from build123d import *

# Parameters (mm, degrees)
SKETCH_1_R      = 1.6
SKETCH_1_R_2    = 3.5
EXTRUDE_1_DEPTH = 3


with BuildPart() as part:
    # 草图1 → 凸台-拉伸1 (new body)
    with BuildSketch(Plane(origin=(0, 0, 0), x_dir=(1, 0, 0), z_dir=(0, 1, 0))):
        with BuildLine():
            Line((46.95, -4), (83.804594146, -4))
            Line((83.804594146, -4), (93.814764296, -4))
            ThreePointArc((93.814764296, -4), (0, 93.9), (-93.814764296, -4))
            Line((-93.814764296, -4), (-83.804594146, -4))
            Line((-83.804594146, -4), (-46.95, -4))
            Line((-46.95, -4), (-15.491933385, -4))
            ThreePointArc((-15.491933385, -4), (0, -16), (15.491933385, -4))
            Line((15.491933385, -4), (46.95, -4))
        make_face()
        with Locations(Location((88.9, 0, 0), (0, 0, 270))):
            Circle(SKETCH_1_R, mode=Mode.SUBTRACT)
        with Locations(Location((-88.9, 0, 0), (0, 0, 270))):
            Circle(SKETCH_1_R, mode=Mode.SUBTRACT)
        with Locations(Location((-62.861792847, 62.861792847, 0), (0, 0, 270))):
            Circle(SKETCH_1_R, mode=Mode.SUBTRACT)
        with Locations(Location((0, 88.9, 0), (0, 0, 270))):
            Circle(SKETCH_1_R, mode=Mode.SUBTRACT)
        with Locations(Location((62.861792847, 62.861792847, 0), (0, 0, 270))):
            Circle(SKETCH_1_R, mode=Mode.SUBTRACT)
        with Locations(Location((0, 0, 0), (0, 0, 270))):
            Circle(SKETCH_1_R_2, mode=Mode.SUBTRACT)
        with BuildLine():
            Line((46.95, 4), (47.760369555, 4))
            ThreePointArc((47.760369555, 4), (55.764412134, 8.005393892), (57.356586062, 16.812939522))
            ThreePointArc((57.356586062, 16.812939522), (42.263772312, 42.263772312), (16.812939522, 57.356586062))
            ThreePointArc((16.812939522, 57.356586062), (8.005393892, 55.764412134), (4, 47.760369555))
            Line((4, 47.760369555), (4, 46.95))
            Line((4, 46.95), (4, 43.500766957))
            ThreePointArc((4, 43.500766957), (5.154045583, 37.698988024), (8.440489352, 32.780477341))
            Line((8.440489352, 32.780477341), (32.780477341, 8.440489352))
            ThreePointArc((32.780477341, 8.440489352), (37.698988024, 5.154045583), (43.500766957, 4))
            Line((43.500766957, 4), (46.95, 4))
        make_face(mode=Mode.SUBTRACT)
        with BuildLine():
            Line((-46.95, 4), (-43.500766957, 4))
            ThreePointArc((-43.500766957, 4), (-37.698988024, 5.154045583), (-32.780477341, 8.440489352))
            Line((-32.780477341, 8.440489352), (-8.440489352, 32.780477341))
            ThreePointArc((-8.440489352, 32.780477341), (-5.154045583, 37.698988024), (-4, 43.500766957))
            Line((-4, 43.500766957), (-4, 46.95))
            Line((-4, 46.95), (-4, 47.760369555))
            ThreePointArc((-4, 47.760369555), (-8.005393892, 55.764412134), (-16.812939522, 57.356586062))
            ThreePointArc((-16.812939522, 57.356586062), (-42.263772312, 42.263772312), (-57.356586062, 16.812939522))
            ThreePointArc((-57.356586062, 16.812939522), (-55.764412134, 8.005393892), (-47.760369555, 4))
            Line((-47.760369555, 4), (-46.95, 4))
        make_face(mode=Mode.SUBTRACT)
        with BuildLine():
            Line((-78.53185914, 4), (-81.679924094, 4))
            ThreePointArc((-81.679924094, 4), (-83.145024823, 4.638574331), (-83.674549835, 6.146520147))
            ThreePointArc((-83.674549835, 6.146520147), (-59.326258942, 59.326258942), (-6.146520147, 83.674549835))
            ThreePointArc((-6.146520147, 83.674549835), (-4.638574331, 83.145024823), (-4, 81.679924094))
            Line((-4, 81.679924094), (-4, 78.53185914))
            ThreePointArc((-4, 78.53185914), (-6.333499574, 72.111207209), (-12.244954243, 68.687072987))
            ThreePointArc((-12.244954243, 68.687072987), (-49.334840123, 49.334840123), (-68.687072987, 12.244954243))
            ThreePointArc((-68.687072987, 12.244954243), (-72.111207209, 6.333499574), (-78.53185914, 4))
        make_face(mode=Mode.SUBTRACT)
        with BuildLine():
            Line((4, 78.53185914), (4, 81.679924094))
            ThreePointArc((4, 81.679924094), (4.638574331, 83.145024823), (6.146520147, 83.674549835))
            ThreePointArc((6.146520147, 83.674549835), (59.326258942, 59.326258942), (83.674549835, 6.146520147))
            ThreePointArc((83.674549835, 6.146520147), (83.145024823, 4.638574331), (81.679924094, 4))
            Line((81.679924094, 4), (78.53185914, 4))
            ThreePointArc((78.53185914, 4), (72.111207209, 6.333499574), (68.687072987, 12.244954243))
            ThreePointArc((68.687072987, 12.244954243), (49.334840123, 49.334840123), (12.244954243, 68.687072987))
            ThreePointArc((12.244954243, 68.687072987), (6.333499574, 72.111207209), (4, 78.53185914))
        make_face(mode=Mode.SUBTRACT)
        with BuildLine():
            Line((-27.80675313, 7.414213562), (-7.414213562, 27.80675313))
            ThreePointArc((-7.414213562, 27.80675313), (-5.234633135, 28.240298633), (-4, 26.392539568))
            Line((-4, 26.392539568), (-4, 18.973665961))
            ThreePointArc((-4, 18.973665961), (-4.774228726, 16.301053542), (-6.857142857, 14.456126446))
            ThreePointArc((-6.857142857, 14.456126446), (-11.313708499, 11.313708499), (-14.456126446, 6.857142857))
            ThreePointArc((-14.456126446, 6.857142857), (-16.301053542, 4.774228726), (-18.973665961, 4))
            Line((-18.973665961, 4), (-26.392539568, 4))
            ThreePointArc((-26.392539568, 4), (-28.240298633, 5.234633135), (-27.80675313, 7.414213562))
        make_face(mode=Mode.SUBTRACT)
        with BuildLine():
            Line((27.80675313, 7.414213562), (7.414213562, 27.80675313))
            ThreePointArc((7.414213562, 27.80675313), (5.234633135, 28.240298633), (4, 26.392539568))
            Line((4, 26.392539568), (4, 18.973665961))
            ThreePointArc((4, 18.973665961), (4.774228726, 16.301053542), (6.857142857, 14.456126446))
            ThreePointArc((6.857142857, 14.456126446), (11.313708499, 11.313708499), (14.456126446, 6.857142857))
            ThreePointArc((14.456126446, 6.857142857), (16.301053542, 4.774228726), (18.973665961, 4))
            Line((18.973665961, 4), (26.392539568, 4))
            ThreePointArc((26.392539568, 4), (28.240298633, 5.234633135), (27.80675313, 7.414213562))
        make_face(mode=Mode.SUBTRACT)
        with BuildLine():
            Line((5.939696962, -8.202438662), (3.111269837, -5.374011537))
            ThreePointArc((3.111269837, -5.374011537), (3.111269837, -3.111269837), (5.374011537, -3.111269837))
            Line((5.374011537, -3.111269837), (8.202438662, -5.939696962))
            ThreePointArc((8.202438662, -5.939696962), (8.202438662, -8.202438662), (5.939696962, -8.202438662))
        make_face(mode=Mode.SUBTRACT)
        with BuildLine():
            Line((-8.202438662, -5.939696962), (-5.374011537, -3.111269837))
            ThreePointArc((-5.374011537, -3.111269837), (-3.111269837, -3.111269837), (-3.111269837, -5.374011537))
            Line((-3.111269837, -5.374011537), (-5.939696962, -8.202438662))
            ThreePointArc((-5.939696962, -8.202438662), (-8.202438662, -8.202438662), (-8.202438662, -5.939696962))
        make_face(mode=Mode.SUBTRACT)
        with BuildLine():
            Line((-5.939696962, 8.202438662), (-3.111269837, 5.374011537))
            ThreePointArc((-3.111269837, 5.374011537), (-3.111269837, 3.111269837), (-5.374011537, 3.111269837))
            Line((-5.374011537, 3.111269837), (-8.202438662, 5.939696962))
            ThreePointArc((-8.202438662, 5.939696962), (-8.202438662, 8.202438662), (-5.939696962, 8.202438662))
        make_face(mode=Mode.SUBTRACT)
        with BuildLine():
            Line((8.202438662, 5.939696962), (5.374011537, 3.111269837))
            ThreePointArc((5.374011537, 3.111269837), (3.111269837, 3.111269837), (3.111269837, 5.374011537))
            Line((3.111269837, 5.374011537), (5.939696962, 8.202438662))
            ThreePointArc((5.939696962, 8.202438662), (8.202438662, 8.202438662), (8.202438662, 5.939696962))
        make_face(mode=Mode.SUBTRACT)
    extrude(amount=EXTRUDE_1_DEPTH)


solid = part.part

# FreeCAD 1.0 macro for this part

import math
import FreeCAD as App
import Part
import Sketcher
from FreeCAD import Vector

doc = App.newDocument("Part")
body = doc.addObject("PartDesign::Body", "Body")

# Sketch on XZ plane
sketch1 = body.newObject("Sketcher::SketchObject", "Sketch")
sketch1.AttachmentSupport = (doc.getObject("XZ_Plane"), [""])
sketch1.MapMode = "FlatFace"
sketch1.addGeometry([
    Part.ArcOfCircle(Part.Circle(Vector(0, 0, 0), Vector(0, 0, 1), 93.9), math.radians(178), math.radians(362)),  # 0
    Part.LineSegment(Vector(-93.8, 4, 0), Vector(-15.5, 4, 0)),  # 1
    Part.ArcOfCircle(Part.Circle(Vector(0, 0, 0), Vector(0, 0, 1), 16), math.radians(14), math.radians(166)),  # 2
    Part.LineSegment(Vector(15.5, 4, 0), Vector(93.8, 4, 0)),  # 3
    Part.Circle(Vector(-88.9, 0, 0), Vector(0, 0, 1), 1.6),  # 4
    Part.ArcOfCircle(Part.Circle(Vector(-7.1, 7.1, 0), Vector(0, 0, 1), 1.6), math.radians(45), math.radians(225)),  # 5
    Part.LineSegment(Vector(-8.2, 5.9, 0), Vector(-5.4, 3.1, 0)),  # 6
    Part.ArcOfCircle(Part.Circle(Vector(-4.2, 4.2, 0), Vector(0, 0, 1), 1.6), math.radians(-135), math.radians(45)),  # 7
    Part.LineSegment(Vector(-3.1, 5.4, 0), Vector(-5.9, 8.2, 0)),  # 8
    Part.ArcOfCircle(Part.Circle(Vector(-7.1, -7.1, 0), Vector(0, 0, 1), 1.6), math.radians(135), math.radians(315)),  # 9
    Part.LineSegment(Vector(-5.9, -8.2, 0), Vector(-3.1, -5.4, 0)),  # 10
    Part.ArcOfCircle(Part.Circle(Vector(-4.2, -4.2, 0), Vector(0, 0, 1), 1.6), math.radians(-45), math.radians(135)),  # 11
    Part.LineSegment(Vector(-5.4, -3.1, 0), Vector(-8.2, -5.9, 0)),  # 12
    Part.ArcOfCircle(Part.Circle(Vector(-26.4, -6, 0), Vector(0, 0, 1), 2), math.radians(90), math.radians(225)),  # 13
    Part.LineSegment(Vector(-27.8, -7.4, 0), Vector(-7.4, -27.8, 0)),  # 14
    Part.ArcOfCircle(Part.Circle(Vector(-6, -26.4, 0), Vector(0, 0, 1), 2), math.radians(-135), math.radians(0)),  # 15
    Part.LineSegment(Vector(-4, -26.4, 0), Vector(-4, -19, 0)),  # 16
    Part.ArcOfCircle(Part.Circle(Vector(-9, -19, 0), Vector(0, 0, 1), 5), math.radians(0), math.radians(65)),  # 17
    Part.ArcOfCircle(Part.Circle(Vector(0, 0, 0), Vector(0, 0, 1), 16), math.radians(-155), math.radians(-115)),  # 18
    Part.ArcOfCircle(Part.Circle(Vector(-19, -9, 0), Vector(0, 0, 1), 5), math.radians(25), math.radians(90)),  # 19
    Part.LineSegment(Vector(-19, -4, 0), Vector(-26.4, -4, 0)),  # 20
    Part.ArcOfCircle(Part.Circle(Vector(-43.5, -19.2, 0), Vector(0, 0, 1), 15.2), math.radians(45), math.radians(90)),  # 21
    Part.LineSegment(Vector(-43.5, -4, 0), Vector(-47.8, -4, 0)),  # 22
    Part.ArcOfCircle(Part.Circle(Vector(-47.8, -14, 0), Vector(0, 0, 1), 10), math.radians(90), math.radians(196)),  # 23
    Part.ArcOfCircle(Part.Circle(Vector(0, 0, 0), Vector(0, 0, 1), 59.8), math.radians(-164), math.radians(-106)),  # 24
    Part.ArcOfCircle(Part.Circle(Vector(-14, -47.8, 0), Vector(0, 0, 1), 10), math.radians(-106), math.radians(0)),  # 25
    Part.LineSegment(Vector(-4, -47.8, 0), Vector(-4, -43.5, 0)),  # 26
    Part.ArcOfCircle(Part.Circle(Vector(-19.2, -43.5, 0), Vector(0, 0, 1), 15.2), math.radians(0), math.radians(45)),  # 27
    Part.LineSegment(Vector(-8.4, -32.8, 0), Vector(-32.8, -8.4, 0)),  # 28
    Part.ArcOfCircle(Part.Circle(Vector(7.1, 7.1, 0), Vector(0, 0, 1), 1.6), math.radians(-45), math.radians(135)),  # 29
    Part.LineSegment(Vector(5.9, 8.2, 0), Vector(3.1, 5.4, 0)),  # 30
    Part.ArcOfCircle(Part.Circle(Vector(4.2, 4.2, 0), Vector(0, 0, 1), 1.6), math.radians(135), math.radians(315)),  # 31
    Part.LineSegment(Vector(5.4, 3.1, 0), Vector(8.2, 5.9, 0)),  # 32
    Part.Circle(Vector(0, 0, 0), Vector(0, 0, 1), 3.5),  # 33
    Part.ArcOfCircle(Part.Circle(Vector(7.1, -7.1, 0), Vector(0, 0, 1), 1.6), math.radians(-135), math.radians(45)),  # 34
    Part.LineSegment(Vector(8.2, -5.9, 0), Vector(5.4, -3.1, 0)),  # 35
    Part.ArcOfCircle(Part.Circle(Vector(4.2, -4.2, 0), Vector(0, 0, 1), 1.6), math.radians(45), math.radians(225)),  # 36
    Part.LineSegment(Vector(3.1, -5.4, 0), Vector(5.9, -8.2, 0)),  # 37
    Part.Circle(Vector(88.9, 0, 0), Vector(0, 0, 1), 1.6),  # 38
    Part.LineSegment(Vector(7.4, -27.8, 0), Vector(27.8, -7.4, 0)),  # 39
    Part.ArcOfCircle(Part.Circle(Vector(26.4, -6, 0), Vector(0, 0, 1), 2), math.radians(-45), math.radians(90)),  # 40
    Part.LineSegment(Vector(26.4, -4, 0), Vector(19, -4, 0)),  # 41
    Part.ArcOfCircle(Part.Circle(Vector(19, -9, 0), Vector(0, 0, 1), 5), math.radians(90), math.radians(155)),  # 42
    Part.ArcOfCircle(Part.Circle(Vector(0, 0, 0), Vector(0, 0, 1), 16), math.radians(-65), math.radians(-25)),  # 43
    Part.ArcOfCircle(Part.Circle(Vector(9, -19, 0), Vector(0, 0, 1), 5), math.radians(115), math.radians(180)),  # 44
    Part.LineSegment(Vector(4, -19, 0), Vector(4, -26.4, 0)),  # 45
    Part.ArcOfCircle(Part.Circle(Vector(6, -26.4, 0), Vector(0, 0, 1), 2), math.radians(180), math.radians(315)),  # 46
    Part.ArcOfCircle(Part.Circle(Vector(47.8, -14, 0), Vector(0, 0, 1), 10), math.radians(-16), math.radians(90)),  # 47
    Part.LineSegment(Vector(47.8, -4, 0), Vector(43.5, -4, 0)),  # 48
    Part.ArcOfCircle(Part.Circle(Vector(43.5, -19.2, 0), Vector(0, 0, 1), 15.2), math.radians(90), math.radians(135)),  # 49
    Part.LineSegment(Vector(32.8, -8.4, 0), Vector(8.4, -32.8, 0)),  # 50
    Part.ArcOfCircle(Part.Circle(Vector(19.2, -43.5, 0), Vector(0, 0, 1), 15.2), math.radians(135), math.radians(180)),  # 51
    Part.LineSegment(Vector(4, -43.5, 0), Vector(4, -47.8, 0)),  # 52
    Part.ArcOfCircle(Part.Circle(Vector(14, -47.8, 0), Vector(0, 0, 1), 10), math.radians(180), math.radians(286)),  # 53
    Part.ArcOfCircle(Part.Circle(Vector(0, 0, 0), Vector(0, 0, 1), 59.8), math.radians(-74), math.radians(-16)),  # 54
    Part.Circle(Vector(-62.9, -62.9, 0), Vector(0, 0, 1), 1.6),  # 55
    Part.ArcOfCircle(Part.Circle(Vector(-78.5, -14, 0), Vector(0, 0, 1), 10), math.radians(10), math.radians(90)),  # 56
    Part.LineSegment(Vector(-78.5, -4, 0), Vector(-81.7, -4, 0)),  # 57
    Part.ArcOfCircle(Part.Circle(Vector(-81.7, -6, 0), Vector(0, 0, 1), 2), math.radians(90), math.radians(184)),  # 58
    Part.ArcOfCircle(Part.Circle(Vector(0, 0, 0), Vector(0, 0, 1), 83.9), math.radians(-176), math.radians(-94)),  # 59
    Part.ArcOfCircle(Part.Circle(Vector(-6, -81.7, 0), Vector(0, 0, 1), 2), math.radians(-94), math.radians(0)),  # 60
    Part.LineSegment(Vector(-4, -81.7, 0), Vector(-4, -78.5, 0)),  # 61
    Part.ArcOfCircle(Part.Circle(Vector(-14, -78.5, 0), Vector(0, 0, 1), 10), math.radians(0), math.radians(80)),  # 62
    Part.ArcOfCircle(Part.Circle(Vector(0, 0, 0), Vector(0, 0, 1), 69.8), math.radians(-170), math.radians(-100)),  # 63
    Part.ArcOfCircle(Part.Circle(Vector(14, -78.5, 0), Vector(0, 0, 1), 10), math.radians(100), math.radians(180)),  # 64
    Part.LineSegment(Vector(4, -78.5, 0), Vector(4, -81.7, 0)),  # 65
    Part.ArcOfCircle(Part.Circle(Vector(6, -81.7, 0), Vector(0, 0, 1), 2), math.radians(-180), math.radians(-86)),  # 66
    Part.ArcOfCircle(Part.Circle(Vector(0, 0, 0), Vector(0, 0, 1), 83.9), math.radians(-86), math.radians(-4)),  # 67
    Part.ArcOfCircle(Part.Circle(Vector(81.7, -6, 0), Vector(0, 0, 1), 2), math.radians(-4), math.radians(90)),  # 68
    Part.LineSegment(Vector(81.7, -4, 0), Vector(78.5, -4, 0)),  # 69
    Part.ArcOfCircle(Part.Circle(Vector(78.5, -14, 0), Vector(0, 0, 1), 10), math.radians(90), math.radians(170)),  # 70
    Part.ArcOfCircle(Part.Circle(Vector(0, 0, 0), Vector(0, 0, 1), 69.8), math.radians(-80), math.radians(-10)),  # 71
    Part.Circle(Vector(62.9, -62.9, 0), Vector(0, 0, 1), 1.6),  # 72
    Part.Circle(Vector(0, -88.9, 0), Vector(0, 0, 1), 1.6),  # 73
], False)
sketch1.addConstraint([
    Sketcher.Constraint("Coincident", 0, 1, 1, 1),
    Sketcher.Constraint("Coincident", 1, 2, 2, 2),
    Sketcher.Constraint("Coincident", 2, 1, 3, 1),
    Sketcher.Constraint("Coincident", 3, 2, 0, 2),
    Sketcher.Constraint("Tangent", 5, 2, 6, 1),
    Sketcher.Constraint("Tangent", 6, 2, 7, 1),
    Sketcher.Constraint("Tangent", 7, 2, 8, 1),
    Sketcher.Constraint("Tangent", 8, 2, 5, 1),
    Sketcher.Constraint("Tangent", 9, 2, 10, 1),
    Sketcher.Constraint("Tangent", 10, 2, 11, 1),
    Sketcher.Constraint("Tangent", 11, 2, 12, 1),
    Sketcher.Constraint("Tangent", 12, 2, 9, 1),
    Sketcher.Constraint("Tangent", 13, 2, 14, 1),
    Sketcher.Constraint("Tangent", 14, 2, 15, 1),
    Sketcher.Constraint("Tangent", 15, 2, 16, 1),
    Sketcher.Constraint("Tangent", 16, 2, 17, 1),
    Sketcher.Constraint("Tangent", 17, 2, 18, 2),
    Sketcher.Constraint("Tangent", 18, 1, 19, 1),
    Sketcher.Constraint("Tangent", 19, 2, 20, 1),
    Sketcher.Constraint("Tangent", 20, 2, 13, 1),
    Sketcher.Constraint("Tangent", 21, 2, 22, 1),
    Sketcher.Constraint("Tangent", 22, 2, 23, 1),
    Sketcher.Constraint("Tangent", 23, 2, 24, 1),
    Sketcher.Constraint("Tangent", 24, 2, 25, 1),
    Sketcher.Constraint("Tangent", 25, 2, 26, 1),
    Sketcher.Constraint("Tangent", 26, 2, 27, 1),
    Sketcher.Constraint("Tangent", 27, 2, 28, 1),
    Sketcher.Constraint("Tangent", 28, 2, 21, 1),
    Sketcher.Constraint("Tangent", 29, 2, 30, 1),
    Sketcher.Constraint("Tangent", 30, 2, 31, 1),
    Sketcher.Constraint("Tangent", 31, 2, 32, 1),
    Sketcher.Constraint("Tangent", 32, 2, 29, 1),
    Sketcher.Constraint("Tangent", 34, 2, 35, 1),
    Sketcher.Constraint("Tangent", 35, 2, 36, 1),
    Sketcher.Constraint("Tangent", 36, 2, 37, 1),
    Sketcher.Constraint("Tangent", 37, 2, 34, 1),
    Sketcher.Constraint("Tangent", 39, 2, 40, 1),
    Sketcher.Constraint("Tangent", 40, 2, 41, 1),
    Sketcher.Constraint("Tangent", 41, 2, 42, 1),
    Sketcher.Constraint("Tangent", 42, 2, 43, 2),
    Sketcher.Constraint("Tangent", 43, 1, 44, 1),
    Sketcher.Constraint("Tangent", 44, 2, 45, 1),
    Sketcher.Constraint("Tangent", 45, 2, 46, 1),
    Sketcher.Constraint("Tangent", 46, 2, 39, 1),
    Sketcher.Constraint("Tangent", 47, 2, 48, 1),
    Sketcher.Constraint("Tangent", 48, 2, 49, 1),
    Sketcher.Constraint("Tangent", 49, 2, 50, 1),
    Sketcher.Constraint("Tangent", 50, 2, 51, 1),
    Sketcher.Constraint("Tangent", 51, 2, 52, 1),
    Sketcher.Constraint("Tangent", 52, 2, 53, 1),
    Sketcher.Constraint("Tangent", 53, 2, 54, 1),
    Sketcher.Constraint("Tangent", 54, 2, 47, 1),
    Sketcher.Constraint("Tangent", 56, 2, 57, 1),
    Sketcher.Constraint("Tangent", 57, 2, 58, 1),
    Sketcher.Constraint("Tangent", 58, 2, 59, 1),
    Sketcher.Constraint("Tangent", 59, 2, 60, 1),
    Sketcher.Constraint("Tangent", 60, 2, 61, 1),
    Sketcher.Constraint("Tangent", 61, 2, 62, 1),
    Sketcher.Constraint("Tangent", 62, 2, 63, 2),
    Sketcher.Constraint("Tangent", 63, 1, 56, 1),
    Sketcher.Constraint("Tangent", 64, 2, 65, 1),
    Sketcher.Constraint("Tangent", 65, 2, 66, 1),
    Sketcher.Constraint("Tangent", 66, 2, 67, 1),
    Sketcher.Constraint("Tangent", 67, 2, 68, 1),
    Sketcher.Constraint("Tangent", 68, 2, 69, 1),
    Sketcher.Constraint("Tangent", 69, 2, 70, 1),
    Sketcher.Constraint("Tangent", 70, 2, 71, 2),
    Sketcher.Constraint("Tangent", 71, 1, 64, 1),
    Sketcher.Constraint("Horizontal", 1),
    Sketcher.Constraint("Horizontal", 3),
    Sketcher.Constraint("Vertical", 16),
    Sketcher.Constraint("Horizontal", 20),
    Sketcher.Constraint("Horizontal", 22),
    Sketcher.Constraint("Vertical", 26),
    Sketcher.Constraint("Horizontal", 41),
    Sketcher.Constraint("Vertical", 45),
    Sketcher.Constraint("Horizontal", 48),
    Sketcher.Constraint("Vertical", 52),
    Sketcher.Constraint("Horizontal", 57),
    Sketcher.Constraint("Vertical", 61),
    Sketcher.Constraint("Vertical", 65),
    Sketcher.Constraint("Horizontal", 69),
    Sketcher.Constraint("Coincident", 0, 3, -1, 1),
    Sketcher.Constraint("Coincident", 2, 3, -1, 1),
    Sketcher.Constraint("Coincident", 18, 3, -1, 1),
    Sketcher.Constraint("Coincident", 24, 3, -1, 1),
    Sketcher.Constraint("Coincident", 33, 3, -1, 1),
    Sketcher.Constraint("Coincident", 43, 3, -1, 1),
    Sketcher.Constraint("Coincident", 54, 3, -1, 1),
    Sketcher.Constraint("Coincident", 59, 3, -1, 1),
    Sketcher.Constraint("Coincident", 63, 3, -1, 1),
    Sketcher.Constraint("Coincident", 67, 3, -1, 1),
    Sketcher.Constraint("Coincident", 71, 3, -1, 1),
    Sketcher.Constraint("Equal", 4, 5),
    Sketcher.Constraint("Equal", 5, 7),
    Sketcher.Constraint("Equal", 7, 9),
    Sketcher.Constraint("Equal", 9, 11),
    Sketcher.Constraint("Equal", 13, 15),
    Sketcher.Constraint("Equal", 2, 18),
    Sketcher.Constraint("Equal", 17, 19),
    Sketcher.Constraint("Equal", 23, 25),
    Sketcher.Constraint("Equal", 21, 27),
    Sketcher.Constraint("Equal", 11, 29),
    Sketcher.Constraint("Equal", 29, 31),
    Sketcher.Constraint("Equal", 31, 34),
    Sketcher.Constraint("Equal", 34, 36),
    Sketcher.Constraint("Equal", 36, 38),
    Sketcher.Constraint("Equal", 15, 40),
    Sketcher.Constraint("Equal", 19, 42),
    Sketcher.Constraint("Equal", 18, 43),
    Sketcher.Constraint("Equal", 42, 44),
    Sketcher.Constraint("Equal", 40, 46),
    Sketcher.Constraint("Equal", 25, 47),
    Sketcher.Constraint("Equal", 27, 49),
    Sketcher.Constraint("Equal", 49, 51),
    Sketcher.Constraint("Equal", 47, 53),
    Sketcher.Constraint("Equal", 24, 54),
    Sketcher.Constraint("Equal", 38, 55),
    Sketcher.Constraint("Equal", 53, 56),
    Sketcher.Constraint("Equal", 46, 58),
    Sketcher.Constraint("Equal", 58, 60),
    Sketcher.Constraint("Equal", 56, 62),
    Sketcher.Constraint("Equal", 62, 64),
    Sketcher.Constraint("Equal", 60, 66),
    Sketcher.Constraint("Equal", 59, 67),
    Sketcher.Constraint("Equal", 66, 68),
    Sketcher.Constraint("Equal", 64, 70),
    Sketcher.Constraint("Equal", 63, 71),
    Sketcher.Constraint("Equal", 55, 72),
    Sketcher.Constraint("Equal", 72, 73),
    Sketcher.Constraint("Symmetric", 9, 3, 29, 3, -1, 1),
    Sketcher.Constraint("Symmetric", 11, 3, 31, 3, -1, 1),
    Sketcher.Constraint("Symmetric", 5, 3, 34, 3, -1, 1),
    Sketcher.Constraint("Symmetric", 7, 3, 36, 3, -1, 1),
    Sketcher.Constraint("Symmetric", 4, 3, 38, 3, -1, 1),
    Sketcher.Constraint("Symmetric", 5, 3, 29, 3, -2),
    Sketcher.Constraint("Symmetric", 7, 3, 31, 3, -2),
    Sketcher.Constraint("Symmetric", 13, 3, 40, 3, -2),
    Sketcher.Constraint("Symmetric", 15, 3, 46, 3, -2),
    Sketcher.Constraint("Symmetric", 21, 3, 49, 3, -2),
    Sketcher.Constraint("Symmetric", 27, 3, 51, 3, -2),
    Sketcher.Constraint("Symmetric", 55, 3, 72, 3, -2),
    Sketcher.Constraint("PointOnObject", 4, 3, -1),
    Sketcher.Constraint("PointOnObject", 73, 3, -2),
    Sketcher.Constraint("Perpendicular", 8, 10),
    Sketcher.Constraint("Perpendicular", 12, 14),
    Sketcher.Constraint("Parallel", 14, 28),
    Sketcher.Constraint("Horizontal", 47, 3, 56, 3),
    Sketcher.Constraint("Horizontal", 40, 3, 58, 3),
    Sketcher.Constraint("Horizontal", 62, 3, 64, 3),
    Sketcher.Constraint("Horizontal", 58, 3, 68, 3),
    Sketcher.Constraint("Horizontal", 1, 2, 2, 1),
    Sketcher.Constraint("Vertical", 15, 3, 60, 3),
    Sketcher.Constraint("Vertical", 25, 3, 62, 3),
    Sketcher.Constraint("Equal", 41, 16),
    Sketcher.Constraint("Diameter", 33, 7.0),
    Sketcher.Constraint("Radius", 2, 16.0),
    Sketcher.Constraint("Radius", 13, 2.0),
    Sketcher.Constraint("Radius", 17, 5.0),
    Sketcher.Constraint("Radius", 23, 10.0),
    Sketcher.Constraint("Diameter", 4, 3.2),
    Sketcher.Constraint("Radius", 0, 93.9),
    Sketcher.Constraint("Radius", 59, 83.9),
    Sketcher.Constraint("Radius", 24, 59.77),
    Sketcher.Constraint("Radius", 63, 69.77),
    Sketcher.Constraint("Distance", 6, 4.0),
    Sketcher.Constraint("DistanceY", 13, 3, -1, 1, 6.0),
    Sketcher.Constraint("DistanceY", -1, 1, 0, 1, 4.0),
    Sketcher.Constraint("DistanceX", 4, 3, -1, 1, 88.9),
    Sketcher.Constraint("DistanceY", 73, 3, -1, 1, 88.9),
    Sketcher.Constraint("Radius", 21, 15.160779),
    Sketcher.Constraint("Distance", 28, 34.421941),
    Sketcher.Constraint("DistanceX", 20, 2, 20, 1, 7.418874),
    Sketcher.Constraint("DistanceX", 7, 3, -1, 1, 4.242641),
    Sketcher.Constraint("DistanceY", -1, 1, 7, 3, 4.242641),
    Sketcher.Constraint("DistanceX", 55, 3, -1, 1, 62.861793),
    Sketcher.Constraint("DistanceY", 55, 3, -1, 1, 62.861793),
])
pad1 = body.newObject("PartDesign::Pad", "Pad")
pad1.Profile = sketch1
pad1.Length = 3
pad1.Reversed = True

doc.recompute()
